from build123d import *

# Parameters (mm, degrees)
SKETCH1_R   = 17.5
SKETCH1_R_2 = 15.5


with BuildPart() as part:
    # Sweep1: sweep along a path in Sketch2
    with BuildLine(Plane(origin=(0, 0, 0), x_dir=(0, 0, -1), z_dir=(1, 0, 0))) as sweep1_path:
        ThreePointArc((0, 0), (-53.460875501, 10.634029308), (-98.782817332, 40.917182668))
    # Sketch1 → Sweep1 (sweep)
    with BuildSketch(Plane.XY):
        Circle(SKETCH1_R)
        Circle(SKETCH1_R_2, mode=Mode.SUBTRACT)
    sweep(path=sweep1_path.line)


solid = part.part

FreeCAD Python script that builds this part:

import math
import FreeCAD as App
import Part
import Sketcher

doc = App.newDocument("Part")
params = doc.addObject("Spreadsheet::Sheet", "Params")
for row, (alias, value) in enumerate([
    ("sketch1_diameter", "35 mm"),
    ("sketch1_diameter2", "31 mm"),
    ("sketch2_radius", "139.7 mm"),
], start=1):
    params.set(f"A{row}", alias)
    params.set(f"B{row}", "=" + value)
    params.setAlias(f"B{row}", alias)

body = doc.addObject("PartDesign::Body", "Body")

sketch1 = body.newObject("Sketcher::SketchObject", "Sketch")
sketch1.AttachmentSupport = (doc.getObject("XY_Plane"), [""])
sketch1.MapMode = "FlatFace"
sketch1.addGeometry(Part.Circle(App.Vector(0, 0, 0), App.Vector(0, 0, 1), 17.5), False)
sketch1.addGeometry(Part.Circle(App.Vector(0, 0, 0), App.Vector(0, 0, 1), 15.5), False)
sketch1.addConstraint(Sketcher.Constraint("Coincident", 0, 3, -1, 1))
sketch1.addConstraint(Sketcher.Constraint("Coincident", 1, 3, -1, 1))
sketch1.addConstraint(Sketcher.Constraint("Diameter", 0, 35.0))
sketch1.addConstraint(Sketcher.Constraint("Diameter", 1, 31.0))
sketch1.setExpression("Constraints[2]", "Params.sketch1_diameter")
sketch1.setExpression("Constraints[3]", "Params.sketch1_diameter2")

sketch2 = body.newObject("Sketcher::SketchObject", "Sketch001")
sketch2.AttachmentSupport = (doc.getObject("YZ_Plane"), [""])
sketch2.MapMode = "FlatFace"
sketch2.addGeometry(Part.ArcOfCircle(Part.Circle(App.Vector(139.7, 0, 0), App.Vector(0, 0, 1), 139.7), math.radians(135), math.radians(180)), False)
sketch2.addConstraint(Sketcher.Constraint("Coincident", 0, 2, -1, 1))
sketch2.addConstraint(Sketcher.Constraint("PointOnObject", 0, 3, -1))
sketch2.addConstraint(Sketcher.Constraint("Radius", 0, 139.7))
sketch2.addConstraint(Sketcher.Constraint("DistanceX", -1, 1, 0, 1, 40.917183))
sketch2.setExpression("Constraints[2]", "Params.sketch2_radius")
doc.recompute()

additivepipe = body.newObject("PartDesign::AdditivePipe", "AdditivePipe")
additivepipe.Profile = sketch1
additivepipe.Spine = (sketch2, ["Edge1"])

doc.recompute()
